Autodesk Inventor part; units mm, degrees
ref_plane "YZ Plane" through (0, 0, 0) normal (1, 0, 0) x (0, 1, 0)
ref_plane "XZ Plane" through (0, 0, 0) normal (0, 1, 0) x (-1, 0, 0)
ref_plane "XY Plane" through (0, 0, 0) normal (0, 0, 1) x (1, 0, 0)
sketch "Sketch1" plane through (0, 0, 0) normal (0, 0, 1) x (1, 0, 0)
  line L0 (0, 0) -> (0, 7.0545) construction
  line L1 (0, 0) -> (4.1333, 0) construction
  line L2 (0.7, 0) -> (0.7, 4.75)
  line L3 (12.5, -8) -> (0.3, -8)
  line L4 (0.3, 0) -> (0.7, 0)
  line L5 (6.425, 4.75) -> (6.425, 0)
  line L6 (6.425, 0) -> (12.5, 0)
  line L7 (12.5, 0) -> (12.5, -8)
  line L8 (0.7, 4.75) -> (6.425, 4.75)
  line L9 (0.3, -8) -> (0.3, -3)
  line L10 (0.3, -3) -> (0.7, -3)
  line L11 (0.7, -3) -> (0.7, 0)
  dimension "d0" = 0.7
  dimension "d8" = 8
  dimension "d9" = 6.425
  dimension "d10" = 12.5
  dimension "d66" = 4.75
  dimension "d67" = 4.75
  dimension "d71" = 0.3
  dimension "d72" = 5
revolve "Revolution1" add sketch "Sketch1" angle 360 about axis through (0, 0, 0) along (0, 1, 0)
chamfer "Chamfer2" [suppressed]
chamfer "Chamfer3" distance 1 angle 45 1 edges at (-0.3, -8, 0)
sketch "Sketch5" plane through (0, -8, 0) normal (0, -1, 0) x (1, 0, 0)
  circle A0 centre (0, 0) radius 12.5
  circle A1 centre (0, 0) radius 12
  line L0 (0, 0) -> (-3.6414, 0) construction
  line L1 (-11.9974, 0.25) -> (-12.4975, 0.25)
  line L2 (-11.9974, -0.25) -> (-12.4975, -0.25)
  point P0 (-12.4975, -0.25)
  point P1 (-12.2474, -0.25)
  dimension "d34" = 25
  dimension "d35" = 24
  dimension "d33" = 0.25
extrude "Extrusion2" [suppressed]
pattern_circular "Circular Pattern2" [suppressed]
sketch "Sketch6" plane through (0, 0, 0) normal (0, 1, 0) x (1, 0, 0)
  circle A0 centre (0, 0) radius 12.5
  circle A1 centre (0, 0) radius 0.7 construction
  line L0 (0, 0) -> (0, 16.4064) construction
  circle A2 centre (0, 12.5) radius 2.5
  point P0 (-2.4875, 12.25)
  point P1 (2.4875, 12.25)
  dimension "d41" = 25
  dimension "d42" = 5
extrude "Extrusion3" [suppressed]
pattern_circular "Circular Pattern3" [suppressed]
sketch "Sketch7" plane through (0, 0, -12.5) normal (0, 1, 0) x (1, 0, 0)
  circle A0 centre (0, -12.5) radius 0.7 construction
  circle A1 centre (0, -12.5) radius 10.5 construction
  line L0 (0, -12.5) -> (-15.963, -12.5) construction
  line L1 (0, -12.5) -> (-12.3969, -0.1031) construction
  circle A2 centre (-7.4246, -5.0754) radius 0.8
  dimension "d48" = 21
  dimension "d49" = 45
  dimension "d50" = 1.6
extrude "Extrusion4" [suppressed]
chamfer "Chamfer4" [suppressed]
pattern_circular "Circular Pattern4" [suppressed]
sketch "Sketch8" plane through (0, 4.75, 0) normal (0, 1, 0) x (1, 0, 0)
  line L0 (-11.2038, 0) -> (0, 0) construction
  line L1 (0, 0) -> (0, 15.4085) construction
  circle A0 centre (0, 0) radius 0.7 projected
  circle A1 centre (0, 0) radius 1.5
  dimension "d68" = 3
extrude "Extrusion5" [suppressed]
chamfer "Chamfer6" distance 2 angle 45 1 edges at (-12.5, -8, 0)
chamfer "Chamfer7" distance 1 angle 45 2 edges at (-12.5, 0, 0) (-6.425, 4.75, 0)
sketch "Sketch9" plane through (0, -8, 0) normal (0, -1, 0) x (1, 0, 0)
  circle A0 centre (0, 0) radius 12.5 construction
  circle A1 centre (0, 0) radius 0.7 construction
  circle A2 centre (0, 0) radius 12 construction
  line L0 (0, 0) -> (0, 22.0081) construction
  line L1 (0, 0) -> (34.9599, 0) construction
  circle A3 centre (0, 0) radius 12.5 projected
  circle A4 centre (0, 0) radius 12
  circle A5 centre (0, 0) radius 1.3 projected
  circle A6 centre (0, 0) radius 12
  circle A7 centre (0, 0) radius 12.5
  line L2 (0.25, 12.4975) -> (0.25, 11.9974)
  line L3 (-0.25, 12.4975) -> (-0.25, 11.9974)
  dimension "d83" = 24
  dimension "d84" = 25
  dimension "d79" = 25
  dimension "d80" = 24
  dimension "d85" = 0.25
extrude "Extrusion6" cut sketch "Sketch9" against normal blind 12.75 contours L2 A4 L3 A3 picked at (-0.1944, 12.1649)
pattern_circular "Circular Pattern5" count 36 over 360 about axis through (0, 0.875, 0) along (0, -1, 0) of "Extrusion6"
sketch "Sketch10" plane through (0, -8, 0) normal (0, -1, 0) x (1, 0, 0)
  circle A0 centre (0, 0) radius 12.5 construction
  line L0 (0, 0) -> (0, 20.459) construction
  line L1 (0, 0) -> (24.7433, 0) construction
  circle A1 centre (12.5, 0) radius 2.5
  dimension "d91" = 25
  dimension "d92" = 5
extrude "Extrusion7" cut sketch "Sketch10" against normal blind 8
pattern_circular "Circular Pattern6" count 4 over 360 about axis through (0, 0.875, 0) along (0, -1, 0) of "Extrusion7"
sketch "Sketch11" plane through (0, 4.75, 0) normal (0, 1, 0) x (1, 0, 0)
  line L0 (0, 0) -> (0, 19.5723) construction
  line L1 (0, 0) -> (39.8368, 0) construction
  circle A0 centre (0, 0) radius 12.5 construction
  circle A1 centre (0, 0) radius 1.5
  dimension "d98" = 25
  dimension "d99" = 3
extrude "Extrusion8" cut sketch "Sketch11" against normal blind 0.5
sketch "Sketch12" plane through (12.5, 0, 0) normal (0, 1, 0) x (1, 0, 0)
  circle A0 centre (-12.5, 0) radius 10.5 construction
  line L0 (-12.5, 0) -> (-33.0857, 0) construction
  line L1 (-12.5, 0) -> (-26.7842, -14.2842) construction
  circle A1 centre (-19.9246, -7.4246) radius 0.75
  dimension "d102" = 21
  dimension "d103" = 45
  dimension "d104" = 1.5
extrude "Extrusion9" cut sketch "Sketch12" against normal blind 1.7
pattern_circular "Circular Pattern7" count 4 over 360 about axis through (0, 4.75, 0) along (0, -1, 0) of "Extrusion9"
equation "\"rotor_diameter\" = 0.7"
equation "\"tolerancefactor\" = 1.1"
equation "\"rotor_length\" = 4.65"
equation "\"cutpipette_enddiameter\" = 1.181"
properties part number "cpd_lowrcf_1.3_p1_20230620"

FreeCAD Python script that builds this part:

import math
import FreeCAD as App
import Part
import Sketcher

V = App.Vector


def edges_at(feature, points):
    """Names of the edges that pass closest to the given points."""
    edges = feature.Shape.Edges
    near = lambda p: min(range(len(edges)), key=lambda i: edges[i].distToShape(Part.Vertex(*p))[0])
    return sorted({f"Edge{near(p) + 1}" for p in points})


def add_polygon(sketch, points):
    """Adds a closed chain of lines whose ends are joined by coincident constraints."""
    first, n = sketch.GeometryCount, len(points)
    for a, b in zip(points, points[1:] + points[:1]):
        sketch.addGeometry(Part.LineSegment(App.Vector(*a, 0), App.Vector(*b, 0)), False)
    for i in range(n):
        sketch.addConstraint(Sketcher.Constraint("Coincident", first + i, 2, first + (i + 1) % n, 1))

doc = App.newDocument("Part")
body = doc.addObject("PartDesign::Body", "Body")

sketch1 = body.newObject("Sketcher::SketchObject", "Sketch")
sketch1.AttachmentSupport = (doc.getObject("XY_Plane"), [""])
sketch1.MapMode = "FlatFace"
add_polygon(sketch1, [(0.7, 4.75), (0.7, -3), (0.3, -3), (0.3, -8), (12.5, -8), (12.5, 0), (6.42, 0), (6.42, 4.75)])
sketch1.addConstraint([
    Sketcher.Constraint("Vertical", 0),
    Sketcher.Constraint("Horizontal", 1),
    Sketcher.Constraint("Vertical", 2),
    Sketcher.Constraint("Horizontal", 3),
    Sketcher.Constraint("Vertical", 4),
    Sketcher.Constraint("Horizontal", 5),
    Sketcher.Constraint("Vertical", 6),
    Sketcher.Constraint("Horizontal", 7),
    Sketcher.Constraint("PointOnObject", 4, 2, -1),
    Sketcher.Constraint("DistanceY", 2, 2, 2, 1, 5.0),
    Sketcher.Constraint("DistanceY", 4, 1, 4, 2, 8.0),
    Sketcher.Constraint("DistanceY", 6, 1, 6, 2, 4.75),
    Sketcher.Constraint("DistanceX", -1, 1, 0, 2, 0.7),
    Sketcher.Constraint("DistanceX", -1, 1, 1, 2, 0.3),
    Sketcher.Constraint("DistanceX", -1, 1, 3, 2, 12.5),
    Sketcher.Constraint("DistanceX", -1, 1, 5, 2, 6.425),
])
revolution = body.newObject("PartDesign::Revolution", "Revolution")
revolution.Profile = sketch1
revolution.ReferenceAxis = (sketch1, ["V_Axis"])
revolution.Angle = 360
doc.recompute()

chamfer = body.newObject("PartDesign::Chamfer", "Chamfer")
chamfer.Base = (revolution, edges_at(revolution, [(-0.3, -8, 0)]))
chamfer.Size = 1
doc.recompute()

chamfer2 = body.newObject("PartDesign::Chamfer", "Chamfer001")
chamfer2.Base = (chamfer, edges_at(chamfer, [(-12.5, -8, 0)]))
chamfer2.Size = 2
doc.recompute()

chamfer3 = body.newObject("PartDesign::Chamfer", "Chamfer002")
chamfer3.Base = (chamfer2, edges_at(chamfer2, [(-12.5, 0, 0), (-6.425, 4.75, 0)]))
chamfer3.Size = 1

sketch2 = body.newObject("Sketcher::SketchObject", "Sketch001")
sketch2.AttachmentSupport = (doc.getObject("XZ_Plane"), [""])
sketch2.MapMode = "FlatFace"
sketch2.AttachmentOffset = App.Placement(V(0, 0, 8), App.Rotation())
sketch2.addGeometry([
    Part.LineSegment(V(0.25, 12, 0), V(0.25, 12.5, 0)),
    Part.ArcOfCircle(Part.Circle(V(0, 0, 0), V(0, 0, 1), 12.5), math.radians(88.85), math.radians(91.15)),
    Part.LineSegment(V(-0.25, 12.5, 0), V(-0.25, 12, 0)),
    Part.ArcOfCircle(Part.Circle(V(0, 0, 0), V(0, 0, 1), 12), math.radians(88.81), math.radians(91.19)),
], False)
sketch2.addConstraint([
    Sketcher.Constraint("Coincident", 0, 2, 1, 1),
    Sketcher.Constraint("Coincident", 1, 2, 2, 1),
    Sketcher.Constraint("Coincident", 2, 2, 3, 2),
    Sketcher.Constraint("Coincident", 3, 1, 0, 1),
    Sketcher.Constraint("Vertical", 0),
    Sketcher.Constraint("Vertical", 2),
    Sketcher.Constraint("Coincident", 1, 3, -1, 1),
    Sketcher.Constraint("Coincident", 3, 3, -1, 1),
    Sketcher.Constraint("Horizontal", 0, 2, 1, 2),
    Sketcher.Constraint("Radius", 3, 12.0),
    Sketcher.Constraint("Radius", 1, 12.5),
    Sketcher.Constraint("DistanceX", -1, 1, 0, 2, 0.25),
])
pocket1 = body.newObject("PartDesign::Pocket", "Pocket")
pocket1.Profile = sketch2
pocket1.Length = 12.75
doc.recompute()

polarpattern = body.newObject("PartDesign::PolarPattern", "PolarPattern")
polarpattern.Originals = [pocket1]
polarpattern.Axis = (doc.getObject("Y_Axis"), [""])
polarpattern.Angle = 360
polarpattern.Occurrences = 36
body.Tip = polarpattern

sketch3 = body.newObject("Sketcher::SketchObject", "Sketch002")
sketch3.AttachmentSupport = (doc.getObject("XZ_Plane"), [""])
sketch3.MapMode = "FlatFace"
sketch3.AttachmentOffset = App.Placement(V(0, 0, 8), App.Rotation())
sketch3.addGeometry(Part.Circle(V(12.5, 0, 0), V(0, 0, 1), 2.5), False)
sketch3.addConstraint([
    Sketcher.Constraint("PointOnObject", 0, 3, -1),
    Sketcher.Constraint("Diameter", 0, 5.0),
    Sketcher.Constraint("DistanceX", -1, 1, 0, 3, 12.5),
])
pocket2 = body.newObject("PartDesign::Pocket", "Pocket001")
pocket2.Profile = sketch3
pocket2.Length = 8
doc.recompute()

polarpattern2 = body.newObject("PartDesign::PolarPattern", "PolarPattern001")
polarpattern2.Originals = [pocket2]
polarpattern2.Axis = (doc.getObject("Y_Axis"), [""])
polarpattern2.Angle = 360
polarpattern2.Occurrences = 4
body.Tip = polarpattern2

sketch4 = body.newObject("Sketcher::SketchObject", "Sketch003")
sketch4.AttachmentSupport = (doc.getObject("XZ_Plane"), [""])
sketch4.MapMode = "FlatFace"
sketch4.AttachmentOffset = App.Placement(V(0, 0, -4.75), App.Rotation())
sketch4.addGeometry(Part.Circle(V(0, 0, 0), V(0, 0, 1), 1.5), False)
sketch4.addConstraint([
    Sketcher.Constraint("Coincident", 0, 3, -1, 1),
    Sketcher.Constraint("Diameter", 0, 3.0),
])
pocket3 = body.newObject("PartDesign::Pocket", "Pocket002")
pocket3.Profile = sketch4
pocket3.Length = 0.5
pocket3.Reversed = True

sketch5 = body.newObject("Sketcher::SketchObject", "Sketch004")
sketch5.AttachmentSupport = (doc.getObject("XZ_Plane"), [""])
sketch5.MapMode = "FlatFace"
sketch5.addGeometry(Part.Circle(V(-7.4, 7.4, 0), V(0, 0, 1), 0.8), False)
sketch5.addConstraint([
    Sketcher.Constraint("Diameter", 0, 1.5),
    Sketcher.Constraint("DistanceX", 0, 3, -1, 1, 7.4246),
    Sketcher.Constraint("DistanceY", -1, 1, 0, 3, 7.4246),
])
pocket4 = body.newObject("PartDesign::Pocket", "Pocket003")
pocket4.Profile = sketch5
pocket4.Length = 1.7
pocket4.Reversed = True
doc.recompute()

polarpattern3 = body.newObject("PartDesign::PolarPattern", "PolarPattern002")
polarpattern3.Originals = [pocket4]
polarpattern3.Axis = (doc.getObject("Y_Axis"), [""])
polarpattern3.Angle = 360
polarpattern3.Occurrences = 4
body.Tip = polarpattern3

doc.recompute()
